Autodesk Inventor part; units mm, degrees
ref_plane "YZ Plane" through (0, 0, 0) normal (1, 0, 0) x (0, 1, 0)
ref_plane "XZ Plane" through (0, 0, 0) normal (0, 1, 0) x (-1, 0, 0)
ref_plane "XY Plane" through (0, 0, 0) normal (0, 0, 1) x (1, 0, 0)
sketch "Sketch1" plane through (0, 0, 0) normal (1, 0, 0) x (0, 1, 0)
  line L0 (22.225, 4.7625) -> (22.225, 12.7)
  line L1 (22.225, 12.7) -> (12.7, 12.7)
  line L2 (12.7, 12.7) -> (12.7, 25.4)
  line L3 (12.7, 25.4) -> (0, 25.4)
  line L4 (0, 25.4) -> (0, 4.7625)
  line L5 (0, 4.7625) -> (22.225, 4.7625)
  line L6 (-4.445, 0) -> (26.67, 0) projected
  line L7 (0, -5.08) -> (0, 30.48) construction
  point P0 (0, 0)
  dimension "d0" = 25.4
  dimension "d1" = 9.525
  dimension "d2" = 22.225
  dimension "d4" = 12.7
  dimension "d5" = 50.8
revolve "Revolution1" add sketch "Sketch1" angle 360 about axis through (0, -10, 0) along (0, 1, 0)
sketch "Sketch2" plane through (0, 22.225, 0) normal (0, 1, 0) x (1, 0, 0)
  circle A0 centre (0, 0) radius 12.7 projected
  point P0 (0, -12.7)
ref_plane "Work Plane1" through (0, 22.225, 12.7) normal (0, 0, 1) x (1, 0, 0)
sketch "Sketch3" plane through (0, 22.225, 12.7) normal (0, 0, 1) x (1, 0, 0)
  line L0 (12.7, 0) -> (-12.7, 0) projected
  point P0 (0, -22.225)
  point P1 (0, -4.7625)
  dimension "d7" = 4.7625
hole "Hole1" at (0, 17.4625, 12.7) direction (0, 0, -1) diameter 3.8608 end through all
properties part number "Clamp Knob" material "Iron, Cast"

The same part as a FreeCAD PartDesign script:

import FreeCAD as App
import Part
import Sketcher
Q = App.Units.Quantity


def add_polygon(sketch, points):
    """Adds a closed chain of lines whose ends are joined by coincident constraints."""
    first, n = sketch.GeometryCount, len(points)
    for a, b in zip(points, points[1:] + points[:1]):
        sketch.addGeometry(Part.LineSegment(App.Vector(*a, 0), App.Vector(*b, 0)), False)
    for i in range(n):
        sketch.addConstraint(Sketcher.Constraint("Coincident", first + i, 2, first + (i + 1) % n, 1))

doc = App.newDocument("Part")
body = doc.addObject("PartDesign::Body", "Body")

sketch1 = body.newObject("Sketcher::SketchObject", "Sketch")
sketch1.AttachmentSupport = (doc.getObject("YZ_Plane"), [""])
sketch1.MapMode = "FlatFace"
add_polygon(sketch1, [(0, 5), (22, 5), (22, 13), (13, 13), (13, 25), (0, 25)])
sketch1.addConstraint([
    Sketcher.Constraint("Horizontal", 0),
    Sketcher.Constraint("Vertical", 1),
    Sketcher.Constraint("Horizontal", 2),
    Sketcher.Constraint("Vertical", 3),
    Sketcher.Constraint("Horizontal", 4),
    Sketcher.Constraint("Vertical", 5),
    Sketcher.Constraint("PointOnObject", 4, 2, -2),
    Sketcher.Constraint("Equal", 4, 3),
    Sketcher.Constraint("DistanceX", 4, 2, 4, 1, Q("0.5 in")),
    Sketcher.Constraint("DistanceY", -1, 1, 3, 2, Q("1 in")),
    Sketcher.Constraint("DistanceX", 0, 1, 0, 2, Q("0.875 in")),
    Sketcher.Constraint("DistanceY", 1, 1, 1, 2, Q("0.3125 in")),
])
revolution = body.newObject("PartDesign::Revolution", "Revolution")
revolution.Profile = sketch1
revolution.ReferenceAxis = (sketch1, ["H_Axis"])
revolution.Angle = 360

sketch2 = body.newObject("Sketcher::SketchObject", "Sketch001")
sketch2.AttachmentSupport = (doc.getObject("XY_Plane"), [""])
sketch2.MapMode = "FlatFace"
sketch2.AttachmentOffset = App.Placement(App.Vector(0, 0, 0.5 * 25.4), App.Rotation())
sketch2.addGeometry(Part.Circle(App.Vector(0, 17.5, 0), App.Vector(0, 0, 1), 1.9), False)
sketch2.addConstraint([
    Sketcher.Constraint("PointOnObject", 0, 3, -2),
    Sketcher.Constraint("Diameter", 0, Q("0.152 in")),
    Sketcher.Constraint("DistanceY", -1, 1, 0, 3, Q("0.6875 in")),
])
doc.recompute()
hole = body.newObject("PartDesign::Hole", "Hole")
hole.Profile = sketch2
hole.ThreadType = "None"
hole.Diameter = Q("0.152 in")
hole.DepthType = "ThroughAll"

doc.recompute()
